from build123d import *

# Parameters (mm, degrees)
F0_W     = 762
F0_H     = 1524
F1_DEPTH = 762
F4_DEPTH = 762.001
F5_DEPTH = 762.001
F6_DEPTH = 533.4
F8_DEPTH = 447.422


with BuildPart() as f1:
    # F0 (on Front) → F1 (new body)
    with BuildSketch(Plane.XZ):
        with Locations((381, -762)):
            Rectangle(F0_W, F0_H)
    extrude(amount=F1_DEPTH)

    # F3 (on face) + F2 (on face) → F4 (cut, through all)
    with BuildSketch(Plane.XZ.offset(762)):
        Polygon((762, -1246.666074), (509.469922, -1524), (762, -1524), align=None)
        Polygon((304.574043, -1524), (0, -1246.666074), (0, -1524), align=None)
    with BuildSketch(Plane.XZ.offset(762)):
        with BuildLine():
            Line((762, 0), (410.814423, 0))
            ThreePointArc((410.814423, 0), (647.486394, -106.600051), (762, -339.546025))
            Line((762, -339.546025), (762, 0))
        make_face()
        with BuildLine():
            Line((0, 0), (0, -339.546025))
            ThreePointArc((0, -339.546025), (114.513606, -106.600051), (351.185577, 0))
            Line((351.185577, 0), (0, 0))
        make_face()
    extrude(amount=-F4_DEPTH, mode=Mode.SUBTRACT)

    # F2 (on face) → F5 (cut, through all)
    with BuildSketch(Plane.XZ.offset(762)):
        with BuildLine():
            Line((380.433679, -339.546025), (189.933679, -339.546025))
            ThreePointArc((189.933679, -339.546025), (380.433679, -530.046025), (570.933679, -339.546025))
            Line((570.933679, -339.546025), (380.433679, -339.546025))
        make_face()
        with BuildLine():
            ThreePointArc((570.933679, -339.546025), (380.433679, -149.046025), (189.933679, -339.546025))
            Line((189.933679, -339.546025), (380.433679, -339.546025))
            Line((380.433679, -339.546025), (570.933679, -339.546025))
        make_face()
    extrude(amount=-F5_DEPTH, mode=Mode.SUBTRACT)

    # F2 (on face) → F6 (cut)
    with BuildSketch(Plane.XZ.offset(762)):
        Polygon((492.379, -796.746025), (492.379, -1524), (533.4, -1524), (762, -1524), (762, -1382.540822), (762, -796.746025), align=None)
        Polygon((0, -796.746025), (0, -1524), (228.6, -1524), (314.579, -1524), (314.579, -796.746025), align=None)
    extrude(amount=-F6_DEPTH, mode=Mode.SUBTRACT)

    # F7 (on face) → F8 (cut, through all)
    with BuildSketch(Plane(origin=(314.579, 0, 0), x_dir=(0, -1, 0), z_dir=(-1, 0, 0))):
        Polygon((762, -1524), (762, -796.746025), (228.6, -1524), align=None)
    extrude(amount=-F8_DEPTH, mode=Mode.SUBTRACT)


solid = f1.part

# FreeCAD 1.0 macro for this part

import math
import FreeCAD as App
import Part
import Sketcher

V = App.Vector
Q = App.Units.Quantity

doc = App.newDocument("Part")
params = doc.addObject("Spreadsheet::Sheet", "Params")
for row, (alias, value) in enumerate([
    ("sketch1_width", "30 in"),
    ("sketch1_height", "60 in"),
    ("pad1_length", "30 in"),
    ("sketch3_diameter", "15 in"),
    ("sketch4_width", "10.615 in"),
    ("pocket3_length", "21 in"),
    ("sketch5_width", "21 in"),
], start=1):
    params.set(f"A{row}", alias)
    params.set(f"B{row}", "=" + value)
    params.setAlias(f"B{row}", alias)

body = doc.addObject("PartDesign::Body", "Body")

# Sketch on XZ plane
sketch1 = doc.addObject("Sketcher::SketchObject", "Sketch")
body.addObject(sketch1)
sketch1.AttachmentSupport = (doc.XZ_Plane, [""])
sketch1.MapMode = "FlatFace"
sketch1.addGeometry([
    Part.LineSegment(V(0, 0, 0), V(0, -1524, 0)),
    Part.LineSegment(V(0, -1524, 0), V(762, -1524, 0)),
    Part.LineSegment(V(762, -1524, 0), V(762, 0, 0)),
    Part.LineSegment(V(762, 0, 0), V(0, 0, 0)),
], False)
sketch1.addConstraint([
    Sketcher.Constraint("Coincident", 0, 2, 1, 1),
    Sketcher.Constraint("Coincident", 1, 2, 2, 1),
    Sketcher.Constraint("Coincident", 2, 2, 3, 1),
    Sketcher.Constraint("Coincident", 3, 2, 0, 1),
    Sketcher.Constraint("Vertical", 0),
    Sketcher.Constraint("Horizontal", 1),
    Sketcher.Constraint("Vertical", 2),
    Sketcher.Constraint("Horizontal", 3),
    Sketcher.Constraint("Coincident", 3, 2, -1, 1),
    Sketcher.Constraint("DistanceX", 1, 1, 1, 2, Q("30 in")),
    Sketcher.Constraint("DistanceY", 0, 2, 0, 1, Q("60 in")),
])
sketch1.setExpression("Constraints[9]", "Params.sketch1_width")
sketch1.setExpression("Constraints[10]", "Params.sketch1_height")
pad1 = doc.addObject("PartDesign::Pad", "Pad")
body.addObject(pad1)
pad1.Profile = sketch1
pad1.setExpression("Length", "Params.pad1_length")

# Sketch on XZ plane
sketch2 = doc.addObject("Sketcher::SketchObject", "Sketch001")
body.addObject(sketch2)
sketch2.AttachmentSupport = (doc.XZ_Plane, [""])
sketch2.MapMode = "FlatFace"
sketch2.AttachmentOffset = App.Placement(V(0, 0, 30 * 25.4), App.Rotation())
sketch2.addGeometry([
    Part.LineSegment(V(762, -1246.666074, 0), V(509.469922, -1524, 0)),  # 0
    Part.LineSegment(V(509.469922, -1524, 0), V(762, -1524, 0)),  # 1
    Part.LineSegment(V(762, -1524, 0), V(762, -1246.666074, 0)),  # 2
    Part.LineSegment(V(304.574043, -1524, 0), V(0, -1246.666074, 0)),  # 3
    Part.LineSegment(V(0, -1246.666074, 0), V(0, -1524, 0)),  # 4
    Part.LineSegment(V(0, -1524, 0), V(304.574043, -1524, 0)),  # 5
    Part.LineSegment(V(762, 0, 0), V(410.814423, 0, 0)),  # 6
    Part.ArcOfCircle(Part.Circle(V(380.999999, -382.221532, 0), V(0, 0, 1), 383.382576), math.radians(6.391016), math.radians(85.539789)),  # 7
    Part.LineSegment(V(762, -339.546025, 0), V(762, 0, 0)),  # 8
    Part.LineSegment(V(0, 0, 0), V(0, -339.546025, 0)),  # 9
    Part.ArcOfCircle(Part.Circle(V(381.000001, -382.221532, 0), V(0, 0, 1), 383.382576), math.radians(94.460211), math.radians(173.608984)),  # 10
    Part.LineSegment(V(351.185577, 0, 0), V(0, 0, 0)),  # 11
], False)
sketch2.addConstraint([
    Sketcher.Constraint("Coincident", 0, 2, 1, 1),
    Sketcher.Constraint("Coincident", 1, 2, 2, 1),
    Sketcher.Constraint("Coincident", 2, 2, 0, 1),
    Sketcher.Constraint("Coincident", 3, 2, 4, 1),
    Sketcher.Constraint("Coincident", 4, 2, 5, 1),
    Sketcher.Constraint("Coincident", 5, 2, 3, 1),
    Sketcher.Constraint("Coincident", 6, 2, 7, 2),
    Sketcher.Constraint("Coincident", 7, 1, 8, 1),
    Sketcher.Constraint("Coincident", 8, 2, 6, 1),
    Sketcher.Constraint("Coincident", 9, 2, 10, 2),
    Sketcher.Constraint("Coincident", 10, 1, 11, 1),
    Sketcher.Constraint("Coincident", 11, 2, 9, 1),
    Sketcher.Constraint("Horizontal", 1),
    Sketcher.Constraint("Vertical", 2),
    Sketcher.Constraint("Vertical", 4),
    Sketcher.Constraint("Horizontal", 5),
    Sketcher.Constraint("Horizontal", 6),
    Sketcher.Constraint("Vertical", 8),
    Sketcher.Constraint("Vertical", 9),
    Sketcher.Constraint("Horizontal", 11),
    Sketcher.Constraint("Coincident", 11, 2, -1, 1),
    Sketcher.Constraint("Coincident", 10, 3, 7, 3),
    Sketcher.Constraint("Equal", 7, 10),
    Sketcher.Constraint("PointOnObject", 3, 2, -2),
    Sketcher.Constraint("PointOnObject", 6, 2, -1),
    Sketcher.Constraint("Perpendicular", 0, 3),
    Sketcher.Constraint("Horizontal", 2, 2, 3, 2),
    Sketcher.Constraint("Horizontal", 1, 2, 4, 2),
    Sketcher.Constraint("Horizontal", 7, 1, 9, 2),
    Sketcher.Constraint("Vertical", 2, 2, 7, 1),
    Sketcher.Constraint("DistanceX", -1, 1, 7, 3, Q("15 in")),
    Sketcher.Constraint("DistanceY", 0, 2, -1, 1, Q("60 in")),
    Sketcher.Constraint("Radius", 7, 383.382576),
    Sketcher.Constraint("DistanceX", 1, 1, 1, 2, 252.530078),
    Sketcher.Constraint("DistanceX", 6, 2, 0, 2, 98.655499),
    Sketcher.Constraint("Distance", 0, 375.08072),
])
pocket1 = doc.addObject("PartDesign::Pocket", "Pocket")
body.addObject(pocket1)
pocket1.Profile = sketch2
pocket1.Type = "ThroughAll"

# Sketch on XZ plane
sketch3 = doc.addObject("Sketcher::SketchObject", "Sketch002")
body.addObject(sketch3)
sketch3.AttachmentSupport = (doc.XZ_Plane, [""])
sketch3.MapMode = "FlatFace"
sketch3.AttachmentOffset = App.Placement(V(0, 0, 30 * 25.4), App.Rotation())
sketch3.addGeometry(Part.Circle(V(380.433679, -339.546025, 0), V(0, 0, 1), 190.5), False)
sketch3.addConstraint([
    Sketcher.Constraint("Diameter", 0, Q("15 in")),
    Sketcher.Constraint("DistanceX", -1, 1, 0, 3, 380.433679),
    Sketcher.Constraint("DistanceY", 0, 3, -1, 1, 339.546025),
])
sketch3.setExpression("Constraints[0]", "Params.sketch3_diameter")
pocket2 = doc.addObject("PartDesign::Pocket", "Pocket001")
body.addObject(pocket2)
pocket2.Profile = sketch3
pocket2.Type = "ThroughAll"

# Sketch on XZ plane
sketch4 = doc.addObject("Sketcher::SketchObject", "Sketch003")
body.addObject(sketch4)
sketch4.AttachmentSupport = (doc.XZ_Plane, [""])
sketch4.MapMode = "FlatFace"
sketch4.AttachmentOffset = App.Placement(V(0, 0, 30 * 25.4), App.Rotation())
sketch4.addGeometry([
    Part.LineSegment(V(492.379, -796.746025, 0), V(492.379, -1524, 0)),  # 0
    Part.LineSegment(V(492.379, -1524, 0), V(762, -1524, 0)),  # 1
    Part.LineSegment(V(762, -1524, 0), V(762, -796.746025, 0)),  # 2
    Part.LineSegment(V(762, -796.746025, 0), V(492.379, -796.746025, 0)),  # 3
    Part.LineSegment(V(0, -796.746025, 0), V(0, -1524, 0)),  # 4
    Part.LineSegment(V(0, -1524, 0), V(314.579, -1524, 0)),  # 5
    Part.LineSegment(V(314.579, -1524, 0), V(314.579, -796.746025, 0)),  # 6
    Part.LineSegment(V(314.579, -796.746025, 0), V(0, -796.746025, 0)),  # 7
], False)
sketch4.addConstraint([
    Sketcher.Constraint("Coincident", 0, 2, 1, 1),
    Sketcher.Constraint("Coincident", 1, 2, 2, 1),
    Sketcher.Constraint("Coincident", 2, 2, 3, 1),
    Sketcher.Constraint("Coincident", 3, 2, 0, 1),
    Sketcher.Constraint("Coincident", 4, 2, 5, 1),
    Sketcher.Constraint("Coincident", 5, 2, 6, 1),
    Sketcher.Constraint("Coincident", 6, 2, 7, 1),
    Sketcher.Constraint("Coincident", 7, 2, 4, 1),
    Sketcher.Constraint("Vertical", 0),
    Sketcher.Constraint("Horizontal", 1),
    Sketcher.Constraint("Vertical", 2),
    Sketcher.Constraint("Horizontal", 3),
    Sketcher.Constraint("Vertical", 4),
    Sketcher.Constraint("Horizontal", 5),
    Sketcher.Constraint("Vertical", 6),
    Sketcher.Constraint("Horizontal", 7),
    Sketcher.Constraint("PointOnObject", 4, 2, -2),
    Sketcher.Constraint("Horizontal", 1, 2, 4, 2),
    Sketcher.Constraint("Horizontal", 3, 2, 6, 2),
    Sketcher.Constraint("DistanceY", 0, 2, -1, 1, Q("60 in")),
    Sketcher.Constraint("DistanceX", -1, 1, 1, 2, Q("30 in")),
    Sketcher.Constraint("DistanceX", 5, 2, 0, 2, Q("7 in")),
    Sketcher.Constraint("DistanceX", 1, 1, 1, 2, Q("10.615 in")),
    Sketcher.Constraint("DistanceY", 0, 2, 0, 1, 727.253975),
])
sketch4.setExpression("Constraints[22]", "Params.sketch4_width")
pocket3 = doc.addObject("PartDesign::Pocket", "Pocket002")
body.addObject(pocket3)
pocket3.Profile = sketch4
pocket3.setExpression("Length", "Params.pocket3_length")

# Sketch on YZ plane
sketch5 = doc.addObject("Sketcher::SketchObject", "Sketch004")
body.addObject(sketch5)
sketch5.AttachmentSupport = (doc.YZ_Plane, [""])
sketch5.MapMode = "FlatFace"
sketch5.AttachmentOffset = App.Placement(V(0, 0, 12.385 * 25.4), App.Rotation())
sketch5.addGeometry([
    Part.LineSegment(V(-762, -1524, 0), V(-762, -796.746025, 0)),
    Part.LineSegment(V(-762, -796.746025, 0), V(-228.6, -1524, 0)),
    Part.LineSegment(V(-228.6, -1524, 0), V(-762, -1524, 0)),
], False)
sketch5.addConstraint([
    Sketcher.Constraint("Coincident", 0, 2, 1, 1),
    Sketcher.Constraint("Coincident", 1, 2, 2, 1),
    Sketcher.Constraint("Coincident", 2, 2, 0, 1),
    Sketcher.Constraint("Vertical", 0),
    Sketcher.Constraint("Horizontal", 2),
    Sketcher.Constraint("DistanceX", 2, 2, 2, 1, Q("21 in")),
    Sketcher.Constraint("DistanceX", 0, 2, -1, 1, Q("30 in")),
    Sketcher.Constraint("DistanceY", 1, 2, -1, 1, Q("60 in")),
    Sketcher.Constraint("Distance", 1, 901.894619),
])
sketch5.setExpression("Constraints[5]", "Params.sketch5_width")
pocket4 = doc.addObject("PartDesign::Pocket", "Pocket003")
body.addObject(pocket4)
pocket4.Profile = sketch5
pocket4.Type = "ThroughAll"
pocket4.Reversed = True

doc.recompute()
